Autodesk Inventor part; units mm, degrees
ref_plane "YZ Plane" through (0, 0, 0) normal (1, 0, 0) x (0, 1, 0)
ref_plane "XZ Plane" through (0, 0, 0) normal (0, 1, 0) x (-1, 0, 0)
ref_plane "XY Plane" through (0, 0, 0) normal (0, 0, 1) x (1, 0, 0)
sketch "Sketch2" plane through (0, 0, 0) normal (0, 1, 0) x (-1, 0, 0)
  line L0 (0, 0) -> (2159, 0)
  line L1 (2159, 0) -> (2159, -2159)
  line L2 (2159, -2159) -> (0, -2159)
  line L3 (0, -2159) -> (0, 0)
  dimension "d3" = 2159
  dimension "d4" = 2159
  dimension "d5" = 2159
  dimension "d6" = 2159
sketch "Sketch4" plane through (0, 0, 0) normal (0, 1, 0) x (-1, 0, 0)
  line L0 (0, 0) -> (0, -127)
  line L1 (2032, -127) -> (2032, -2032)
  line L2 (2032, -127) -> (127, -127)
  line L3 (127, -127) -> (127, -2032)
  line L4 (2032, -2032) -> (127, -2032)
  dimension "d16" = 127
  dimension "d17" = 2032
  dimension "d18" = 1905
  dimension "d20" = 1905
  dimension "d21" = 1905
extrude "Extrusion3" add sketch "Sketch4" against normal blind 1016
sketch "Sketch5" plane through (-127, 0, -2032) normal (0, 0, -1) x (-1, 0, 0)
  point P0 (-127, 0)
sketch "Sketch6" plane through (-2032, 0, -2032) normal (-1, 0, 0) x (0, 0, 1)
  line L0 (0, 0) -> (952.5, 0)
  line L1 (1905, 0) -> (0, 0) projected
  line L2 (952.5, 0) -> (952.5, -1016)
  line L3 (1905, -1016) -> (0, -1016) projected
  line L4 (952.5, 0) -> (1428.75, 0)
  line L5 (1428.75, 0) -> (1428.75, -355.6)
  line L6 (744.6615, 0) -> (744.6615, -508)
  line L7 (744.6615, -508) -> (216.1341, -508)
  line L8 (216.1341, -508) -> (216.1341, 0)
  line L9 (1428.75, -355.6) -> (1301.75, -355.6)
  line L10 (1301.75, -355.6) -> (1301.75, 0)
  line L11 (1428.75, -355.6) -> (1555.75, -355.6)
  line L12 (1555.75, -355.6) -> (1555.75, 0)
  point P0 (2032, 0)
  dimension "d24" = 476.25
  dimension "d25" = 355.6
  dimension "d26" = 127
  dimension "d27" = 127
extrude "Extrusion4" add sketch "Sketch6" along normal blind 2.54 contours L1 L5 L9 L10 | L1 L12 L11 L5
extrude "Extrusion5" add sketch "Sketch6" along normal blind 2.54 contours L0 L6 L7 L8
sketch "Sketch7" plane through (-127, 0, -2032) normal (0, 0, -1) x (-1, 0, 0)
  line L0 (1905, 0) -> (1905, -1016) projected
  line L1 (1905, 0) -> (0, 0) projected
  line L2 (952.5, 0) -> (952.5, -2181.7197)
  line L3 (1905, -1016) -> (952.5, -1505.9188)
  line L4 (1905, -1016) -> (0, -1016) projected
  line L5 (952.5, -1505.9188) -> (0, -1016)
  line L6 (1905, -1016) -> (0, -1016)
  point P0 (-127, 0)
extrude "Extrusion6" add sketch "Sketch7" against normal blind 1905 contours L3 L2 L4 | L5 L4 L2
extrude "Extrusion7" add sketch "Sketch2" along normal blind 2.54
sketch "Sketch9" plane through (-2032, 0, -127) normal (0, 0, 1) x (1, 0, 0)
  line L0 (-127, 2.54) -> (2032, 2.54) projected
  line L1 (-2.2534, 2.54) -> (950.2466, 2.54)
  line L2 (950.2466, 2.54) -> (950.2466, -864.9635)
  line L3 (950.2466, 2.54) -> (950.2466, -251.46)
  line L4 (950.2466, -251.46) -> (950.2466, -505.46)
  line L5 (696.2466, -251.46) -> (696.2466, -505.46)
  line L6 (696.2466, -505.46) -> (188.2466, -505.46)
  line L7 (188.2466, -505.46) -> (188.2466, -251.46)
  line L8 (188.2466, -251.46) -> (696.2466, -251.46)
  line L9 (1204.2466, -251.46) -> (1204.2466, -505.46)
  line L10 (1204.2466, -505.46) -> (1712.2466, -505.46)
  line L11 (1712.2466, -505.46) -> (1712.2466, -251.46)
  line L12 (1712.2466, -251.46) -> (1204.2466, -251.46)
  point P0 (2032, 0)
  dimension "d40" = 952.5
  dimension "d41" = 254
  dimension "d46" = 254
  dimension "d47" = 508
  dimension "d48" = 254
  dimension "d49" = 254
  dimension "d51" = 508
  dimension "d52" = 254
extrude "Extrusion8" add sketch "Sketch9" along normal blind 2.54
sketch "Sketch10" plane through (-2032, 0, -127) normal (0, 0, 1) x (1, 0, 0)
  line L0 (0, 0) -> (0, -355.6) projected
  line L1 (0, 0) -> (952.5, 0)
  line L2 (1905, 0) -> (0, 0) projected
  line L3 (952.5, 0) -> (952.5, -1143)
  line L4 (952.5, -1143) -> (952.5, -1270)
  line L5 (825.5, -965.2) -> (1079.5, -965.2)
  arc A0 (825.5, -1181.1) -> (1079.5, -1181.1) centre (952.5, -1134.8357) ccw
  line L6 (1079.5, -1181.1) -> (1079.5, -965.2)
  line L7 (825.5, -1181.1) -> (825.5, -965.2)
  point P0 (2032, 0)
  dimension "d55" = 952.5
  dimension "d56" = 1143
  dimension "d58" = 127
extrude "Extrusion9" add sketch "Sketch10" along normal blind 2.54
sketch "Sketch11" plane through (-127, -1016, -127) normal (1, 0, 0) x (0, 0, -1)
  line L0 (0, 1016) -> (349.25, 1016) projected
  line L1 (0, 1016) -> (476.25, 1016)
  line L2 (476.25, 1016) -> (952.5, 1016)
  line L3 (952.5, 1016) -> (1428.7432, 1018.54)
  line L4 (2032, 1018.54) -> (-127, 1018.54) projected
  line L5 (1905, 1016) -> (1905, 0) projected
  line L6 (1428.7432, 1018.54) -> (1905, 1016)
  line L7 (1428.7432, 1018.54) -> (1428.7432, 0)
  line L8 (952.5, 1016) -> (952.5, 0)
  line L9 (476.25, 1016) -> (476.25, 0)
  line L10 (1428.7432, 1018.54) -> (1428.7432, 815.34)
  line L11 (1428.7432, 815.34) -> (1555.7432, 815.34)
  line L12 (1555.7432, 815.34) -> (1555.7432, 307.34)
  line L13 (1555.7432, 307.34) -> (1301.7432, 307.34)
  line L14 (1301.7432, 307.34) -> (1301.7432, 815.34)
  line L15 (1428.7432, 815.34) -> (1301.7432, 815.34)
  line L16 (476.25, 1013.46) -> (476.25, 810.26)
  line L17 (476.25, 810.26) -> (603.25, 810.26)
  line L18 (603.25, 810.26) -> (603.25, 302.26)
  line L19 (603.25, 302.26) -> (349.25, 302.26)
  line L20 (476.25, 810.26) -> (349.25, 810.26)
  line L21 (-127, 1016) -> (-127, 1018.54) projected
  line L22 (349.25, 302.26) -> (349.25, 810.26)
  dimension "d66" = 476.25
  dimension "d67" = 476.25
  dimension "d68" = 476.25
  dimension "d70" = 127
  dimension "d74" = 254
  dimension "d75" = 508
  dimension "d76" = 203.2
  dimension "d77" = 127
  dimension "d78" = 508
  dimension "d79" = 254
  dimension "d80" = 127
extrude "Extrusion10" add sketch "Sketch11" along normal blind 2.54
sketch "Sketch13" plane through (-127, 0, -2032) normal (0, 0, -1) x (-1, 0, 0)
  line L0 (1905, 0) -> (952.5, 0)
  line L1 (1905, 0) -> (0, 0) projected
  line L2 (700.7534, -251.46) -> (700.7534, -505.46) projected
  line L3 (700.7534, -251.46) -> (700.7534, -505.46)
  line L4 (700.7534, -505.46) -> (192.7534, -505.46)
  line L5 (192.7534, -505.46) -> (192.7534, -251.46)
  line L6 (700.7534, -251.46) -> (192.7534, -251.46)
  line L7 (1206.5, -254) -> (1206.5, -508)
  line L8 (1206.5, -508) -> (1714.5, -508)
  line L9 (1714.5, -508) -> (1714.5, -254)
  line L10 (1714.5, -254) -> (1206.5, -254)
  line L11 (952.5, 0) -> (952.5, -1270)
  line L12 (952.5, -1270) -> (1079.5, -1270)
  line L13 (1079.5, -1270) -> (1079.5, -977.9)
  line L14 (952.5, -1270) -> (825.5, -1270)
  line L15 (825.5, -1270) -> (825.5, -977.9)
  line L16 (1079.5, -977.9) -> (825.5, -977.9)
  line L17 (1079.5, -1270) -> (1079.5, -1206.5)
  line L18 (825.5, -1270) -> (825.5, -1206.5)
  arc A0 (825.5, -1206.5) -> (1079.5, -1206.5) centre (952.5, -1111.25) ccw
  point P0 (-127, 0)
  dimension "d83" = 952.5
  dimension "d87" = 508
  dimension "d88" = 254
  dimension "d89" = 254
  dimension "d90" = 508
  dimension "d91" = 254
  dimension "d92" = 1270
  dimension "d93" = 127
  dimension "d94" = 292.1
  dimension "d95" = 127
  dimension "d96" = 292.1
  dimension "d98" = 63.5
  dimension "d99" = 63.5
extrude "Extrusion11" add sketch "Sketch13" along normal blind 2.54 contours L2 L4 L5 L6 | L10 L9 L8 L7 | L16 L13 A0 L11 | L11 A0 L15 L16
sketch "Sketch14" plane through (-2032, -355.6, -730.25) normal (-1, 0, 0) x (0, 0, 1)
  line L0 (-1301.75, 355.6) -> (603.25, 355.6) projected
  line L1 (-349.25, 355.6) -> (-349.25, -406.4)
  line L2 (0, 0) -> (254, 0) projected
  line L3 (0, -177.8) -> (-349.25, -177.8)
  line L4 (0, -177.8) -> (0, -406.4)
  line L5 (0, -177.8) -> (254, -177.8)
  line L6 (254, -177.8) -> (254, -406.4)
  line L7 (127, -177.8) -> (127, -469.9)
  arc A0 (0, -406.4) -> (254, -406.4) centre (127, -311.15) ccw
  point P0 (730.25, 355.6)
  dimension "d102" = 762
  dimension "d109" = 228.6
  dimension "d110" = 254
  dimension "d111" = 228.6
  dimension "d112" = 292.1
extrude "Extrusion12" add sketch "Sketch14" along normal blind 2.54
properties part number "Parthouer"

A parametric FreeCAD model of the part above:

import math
import FreeCAD as App
import Part
import Sketcher

V = App.Vector
Q = App.Units.Quantity


def add_polygon(sketch, points):
    """Adds a closed chain of lines whose ends are joined by coincident constraints."""
    first, n = sketch.GeometryCount, len(points)
    for a, b in zip(points, points[1:] + points[:1]):
        sketch.addGeometry(Part.LineSegment(App.Vector(*a, 0), App.Vector(*b, 0)), False)
    for i in range(n):
        sketch.addConstraint(Sketcher.Constraint("Coincident", first + i, 2, first + (i + 1) % n, 1))

doc = App.newDocument("Part")
body = doc.addObject("PartDesign::Body", "Body")

# Sketch on XZ plane
sketch1 = body.newObject("Sketcher::SketchObject", "Sketch")
sketch1.AttachmentSupport = (doc.getObject("XZ_Plane"), [""])
sketch1.MapMode = "FlatFace"
add_polygon(sketch1, [(-2032, -2032), (-2032, -127), (-127, -127), (-127, -2032)])  # lines 0-3
sketch1.addConstraint([
    Sketcher.Constraint("Vertical", 0),
    Sketcher.Constraint("Horizontal", 1),
    Sketcher.Constraint("Vertical", 2),
    Sketcher.Constraint("Horizontal", 3),
    Sketcher.Constraint("Equal", 3, 0),
    Sketcher.Constraint("DistanceX", 1, 1, 1, 2, Q("75 in")),
    Sketcher.Constraint("DistanceX", 0, 2, -1, 1, Q("80 in")),
    Sketcher.Constraint("DistanceY", 0, 2, -1, 1, Q("5 in")),
])
pad1 = body.newObject("PartDesign::Pad", "Pad")
pad1.Profile = sketch1
pad1.Length = Q("40 in")

# Sketch on YZ plane
sketch2 = body.newObject("Sketcher::SketchObject", "Sketch001")
sketch2.AttachmentSupport = (doc.getObject("YZ_Plane"), [""])
sketch2.MapMode = "FlatFace"
sketch2.AttachmentOffset = App.Placement(V(0, 0, -80 * 25.4), App.Rotation())
add_polygon(sketch2, [(0, -730), (-356, -730), (-356, -476), (0, -476)])  # lines 0-3
sketch2.addConstraint([
    Sketcher.Constraint("Horizontal", 0),
    Sketcher.Constraint("Vertical", 1),
    Sketcher.Constraint("Horizontal", 2),
    Sketcher.Constraint("Vertical", 3),
    Sketcher.Constraint("PointOnObject", 2, 2, -2),
    Sketcher.Constraint("DistanceX", 0, 2, 0, 1, Q("14 in")),
    Sketcher.Constraint("DistanceY", 1, 1, 1, 2, Q("10 in")),
    Sketcher.Constraint("DistanceY", 1, 2, -1, 1, Q("18.75 in")),
])
pad2 = body.newObject("PartDesign::Pad", "Pad001")
pad2.Profile = sketch2
pad2.Length = Q("0.1 in")
pad2.Reversed = True

# Sketch on YZ plane
sketch3 = body.newObject("Sketcher::SketchObject", "Sketch002")
sketch3.AttachmentSupport = (doc.getObject("YZ_Plane"), [""])
sketch3.MapMode = "FlatFace"
sketch3.AttachmentOffset = App.Placement(V(0, 0, -80 * 25.4), App.Rotation())
add_polygon(sketch3, [(0, -1287), (0, -1816), (-508, -1816), (-508, -1287)])  # lines 0-3
sketch3.addConstraint([
    Sketcher.Constraint("Vertical", 0),
    Sketcher.Constraint("Horizontal", 1),
    Sketcher.Constraint("Vertical", 2),
    Sketcher.Constraint("Horizontal", 3),
    Sketcher.Constraint("PointOnObject", 0, 2, -2),
    Sketcher.Constraint("DistanceX", 1, 2, 1, 1, Q("20 in")),
    Sketcher.Constraint("DistanceY", 0, 2, 0, 1, 528.5274),
    Sketcher.Constraint("DistanceY", 0, 2, -1, 1, 1815.866),
])
pad3 = body.newObject("PartDesign::Pad", "Pad002")
pad3.Profile = sketch3
pad3.Length = Q("0.1 in")
pad3.Reversed = True

# Sketch on XY plane
sketch4 = body.newObject("Sketcher::SketchObject", "Sketch003")
sketch4.AttachmentSupport = (doc.getObject("XY_Plane"), [""])
sketch4.MapMode = "FlatFace"
sketch4.AttachmentOffset = App.Placement(V(0, 0, -80 * 25.4), App.Rotation())
add_polygon(sketch4, [(-1080, -1506), (-2032, -1016), (-127, -1016)])  # lines 0-2
sketch4.addConstraint([
    Sketcher.Constraint("Horizontal", 1),
    Sketcher.Constraint("Equal", 0, 2),
    Sketcher.Constraint("DistanceX", 1, 1, 1, 2, Q("75 in")),
    Sketcher.Constraint("DistanceX", 0, 2, -1, 1, Q("80 in")),
    Sketcher.Constraint("DistanceY", 0, 2, -1, 1, Q("40 in")),
    Sketcher.Constraint("Angle", 0, Q("152.781 deg")),
])
pad4 = body.newObject("PartDesign::Pad", "Pad003")
pad4.Profile = sketch4
pad4.Length = Q("75 in")

# Sketch on XZ plane
sketch5 = body.newObject("Sketcher::SketchObject", "Sketch004")
sketch5.AttachmentSupport = (doc.getObject("XZ_Plane"), [""])
sketch5.MapMode = "FlatFace"
add_polygon(sketch5, [(-2159, 0), (0, 0), (0, -2159), (-2159, -2159)])  # lines 0-3
sketch5.addConstraint([
    Sketcher.Constraint("Horizontal", 0),
    Sketcher.Constraint("Vertical", 1),
    Sketcher.Constraint("Horizontal", 2),
    Sketcher.Constraint("Vertical", 3),
    Sketcher.Constraint("Coincident", 0, 2, -1, 1),
    Sketcher.Constraint("Equal", 2, 1),
    Sketcher.Constraint("DistanceX", 0, 1, 0, 2, Q("85 in")),
])
pad5 = body.newObject("PartDesign::Pad", "Pad004")
pad5.Profile = sketch5
pad5.Length = Q("0.1 in")
pad5.Reversed = True

# Sketch on XY plane
sketch6 = body.newObject("Sketcher::SketchObject", "Sketch005")
sketch6.AttachmentSupport = (doc.getObject("XY_Plane"), [""])
sketch6.MapMode = "FlatFace"
sketch6.AttachmentOffset = App.Placement(V(0, 0, -5 * 25.4), App.Rotation())
add_polygon(sketch6, [(-1336, -505), (-1336, -251), (-1844, -251), (-1844, -505)])  # lines 0-3
add_polygon(sketch6, [(-320, -251), (-828, -251), (-828, -505), (-320, -505)])  # lines 4-7
sketch6.addConstraint([
    Sketcher.Constraint("Vertical", 0),
    Sketcher.Constraint("Horizontal", 1),
    Sketcher.Constraint("Vertical", 2),
    Sketcher.Constraint("Horizontal", 3),
    Sketcher.Constraint("Horizontal", 4),
    Sketcher.Constraint("Vertical", 5),
    Sketcher.Constraint("Horizontal", 6),
    Sketcher.Constraint("Vertical", 7),
    Sketcher.Constraint("Horizontal", 1, 2, 4, 2),
    Sketcher.Constraint("Horizontal", 3, 2, 5, 2),
    Sketcher.Constraint("Equal", 3, 4),
    Sketcher.Constraint("DistanceX", 1, 2, 1, 1, Q("20 in")),
    Sketcher.Constraint("DistanceY", 0, 1, 0, 2, Q("10 in")),
    Sketcher.Constraint("DistanceX", 0, 2, 4, 2, Q("20 in")),
    Sketcher.Constraint("DistanceY", 0, 2, -1, 1, Q("9.9 in")),
    Sketcher.Constraint("DistanceX", 0, 2, -1, 1, 1335.7534),
])
pad6 = body.newObject("PartDesign::Pad", "Pad005")
pad6.Profile = sketch6
pad6.Length = Q("0.1 in")

# Sketch on XY plane
sketch7 = body.newObject("Sketcher::SketchObject", "Sketch006")
sketch7.AttachmentSupport = (doc.getObject("XY_Plane"), [""])
sketch7.MapMode = "FlatFace"
sketch7.AttachmentOffset = App.Placement(V(0, 0, -5 * 25.4), App.Rotation())
sketch7.addGeometry([
    Part.LineSegment(V(-952, -965, 0), V(-1206, -965, 0)),
    Part.LineSegment(V(-1206, -965, 0), V(-1206, -1181, 0)),
    Part.ArcOfCircle(Part.Circle(V(-1080, -1135, 0), V(0, 0, 1), 135), math.radians(-160), math.radians(-20)),
    Part.LineSegment(V(-952, -1181, 0), V(-952, -965, 0)),
], False)
sketch7.addConstraint([
    Sketcher.Constraint("Coincident", 0, 2, 1, 1),
    Sketcher.Constraint("Coincident", 1, 2, 2, 1),
    Sketcher.Constraint("Coincident", 2, 2, 3, 1),
    Sketcher.Constraint("Coincident", 3, 2, 0, 1),
    Sketcher.Constraint("Horizontal", 0),
    Sketcher.Constraint("Vertical", 1),
    Sketcher.Constraint("Vertical", 3),
    Sketcher.Constraint("Horizontal", 1, 2, 2, 2),
    Sketcher.Constraint("DistanceX", 0, 2, 2, 3, Q("5 in")),
    Sketcher.Constraint("DistanceX", 2, 2, -1, 1, Q("37.5 in")),
    Sketcher.Constraint("DistanceY", 1, 2, 1, 1, Q("8.5 in")),
    Sketcher.Constraint("DistanceY", 0, 2, -1, 1, Q("38 in")),
    Sketcher.Constraint("Radius", 2, 135.1643),
])
pad7 = body.newObject("PartDesign::Pad", "Pad006")
pad7.Profile = sketch7
pad7.Length = Q("0.1 in")

# Sketch on YZ plane
sketch8 = body.newObject("Sketcher::SketchObject", "Sketch007")
sketch8.AttachmentSupport = (doc.getObject("YZ_Plane"), [""])
sketch8.MapMode = "FlatFace"
sketch8.AttachmentOffset = App.Placement(V(0, 0, -5 * 25.4), App.Rotation())
add_polygon(sketch8, [(-201, -1683), (-201, -1429), (-709, -1429), (-709, -1683)])  # lines 0-3
add_polygon(sketch8, [(-206, -730), (-206, -476), (-714, -476), (-714, -730)])  # lines 4-7
sketch8.addConstraint([
    Sketcher.Constraint("Vertical", 0),
    Sketcher.Constraint("Horizontal", 1),
    Sketcher.Constraint("Vertical", 2),
    Sketcher.Constraint("Horizontal", 3),
    Sketcher.Constraint("Vertical", 4),
    Sketcher.Constraint("Horizontal", 5),
    Sketcher.Constraint("Vertical", 6),
    Sketcher.Constraint("Horizontal", 7),
    Sketcher.Constraint("Equal", 3, 5),
    Sketcher.Constraint("Equal", 2, 4),
    Sketcher.Constraint("DistanceX", 1, 2, 1, 1, Q("20 in")),
    Sketcher.Constraint("DistanceY", 0, 1, 0, 2, Q("10 in")),
    Sketcher.Constraint("DistanceY", 4, 2, -1, 1, Q("18.75 in")),
    Sketcher.Constraint("DistanceX", 0, 2, -1, 1, Q("7.9 in")),
    Sketcher.Constraint("DistanceX", 4, 2, -1, 1, Q("8.1 in")),
    Sketcher.Constraint("DistanceY", 0, 2, -1, 1, 1428.7432),
])
pad8 = body.newObject("PartDesign::Pad", "Pad007")
pad8.Profile = sketch8
pad8.Length = Q("0.1 in")

# Sketch on XY plane
sketch9 = body.newObject("Sketcher::SketchObject", "Sketch008")
sketch9.AttachmentSupport = (doc.getObject("XY_Plane"), [""])
sketch9.MapMode = "FlatFace"
sketch9.AttachmentOffset = App.Placement(V(0, 0, -80 * 25.4), App.Rotation())
add_polygon(sketch9, [(-828, -505), (-828, -251), (-320, -251), (-320, -505)])  # lines 0-3
add_polygon(sketch9, [(-1842, -254), (-1334, -254), (-1334, -508), (-1842, -508)])  # lines 4-7
sketch9.addGeometry(Part.LineSegment(V(-1206, -978, 0), V(-952, -978, 0)), False)  # 8
sketch9.addGeometry(Part.LineSegment(V(-952, -978, 0), V(-952, -1206, 0)), False)  # 9
sketch9.addGeometry(Part.ArcOfCircle(Part.Circle(V(-1080, -1111, 0), V(0, 0, 1), 159), math.radians(-143), math.radians(-37)), False)  # 10
sketch9.addGeometry(Part.LineSegment(V(-1206, -1206, 0), V(-1206, -978, 0)), False)  # 11
sketch9.addConstraint([
    Sketcher.Constraint("Coincident", 8, 2, 9, 1),
    Sketcher.Constraint("Coincident", 9, 2, 10, 2),
    Sketcher.Constraint("Coincident", 10, 1, 11, 1),
    Sketcher.Constraint("Coincident", 11, 2, 8, 1),
    Sketcher.Constraint("Vertical", 0),
    Sketcher.Constraint("Horizontal", 1),
    Sketcher.Constraint("Vertical", 2),
    Sketcher.Constraint("Horizontal", 3),
    Sketcher.Constraint("Horizontal", 4),
    Sketcher.Constraint("Vertical", 5),
    Sketcher.Constraint("Horizontal", 6),
    Sketcher.Constraint("Vertical", 7),
    Sketcher.Constraint("Horizontal", 8),
    Sketcher.Constraint("Vertical", 9),
    Sketcher.Constraint("Vertical", 11),
    Sketcher.Constraint("Horizontal", 9, 2, 10, 1),
    Sketcher.Constraint("Equal", 3, 4),
    Sketcher.Constraint("Equal", 8, 0),
    Sketcher.Constraint("Equal", 2, 5),
    Sketcher.Constraint("DistanceX", 1, 1, 1, 2, Q("20 in")),
    Sketcher.Constraint("DistanceX", 8, 1, 8, 2, Q("10 in")),
    Sketcher.Constraint("DistanceY", 4, 2, -1, 1, Q("10 in")),
    Sketcher.Constraint("DistanceX", 4, 2, 10, 3, Q("10 in")),
    Sketcher.Constraint("DistanceX", 8, 2, -1, 1, Q("37.5 in")),
    Sketcher.Constraint("DistanceY", 9, 2, 9, 1, Q("9 in")),
    Sketcher.Constraint("Radius", 10, Q("6.25 in")),
    Sketcher.Constraint("DistanceY", 0, 2, -1, 1, Q("9.9 in")),
    Sketcher.Constraint("DistanceY", 8, 2, -1, 1, Q("38.5 in")),
    Sketcher.Constraint("DistanceX", 0, 2, -1, 1, 827.7534),
])
pad9 = body.newObject("PartDesign::Pad", "Pad008")
pad9.Profile = sketch9
pad9.Length = Q("0.1 in")
pad9.Reversed = True

# Sketch on YZ plane
sketch10 = body.newObject("Sketcher::SketchObject", "Sketch009")
sketch10.AttachmentSupport = (doc.getObject("YZ_Plane"), [""])
sketch10.MapMode = "FlatFace"
sketch10.AttachmentOffset = App.Placement(V(0, 0, -80 * 25.4), App.Rotation())
sketch10.addGeometry([
    Part.LineSegment(V(-533, -730, 0), V(-762, -730, 0)),
    Part.ArcOfCircle(Part.Circle(V(-667, -603, 0), V(0, 0, 1), 159), math.radians(127), math.radians(233)),
    Part.LineSegment(V(-762, -476, 0), V(-533, -476, 0)),
    Part.LineSegment(V(-533, -476, 0), V(-533, -730, 0)),
], False)
sketch10.addConstraint([
    Sketcher.Constraint("Coincident", 0, 2, 1, 2),
    Sketcher.Constraint("Coincident", 1, 1, 2, 1),
    Sketcher.Constraint("Coincident", 2, 2, 3, 1),
    Sketcher.Constraint("Coincident", 3, 2, 0, 1),
    Sketcher.Constraint("Horizontal", 0),
    Sketcher.Constraint("Horizontal", 2),
    Sketcher.Constraint("Vertical", 3),
    Sketcher.Constraint("Vertical", 0, 2, 1, 1),
    Sketcher.Constraint("DistanceX", 0, 2, 0, 1, Q("9 in")),
    Sketcher.Constraint("DistanceY", 3, 2, 3, 1, Q("10 in")),
    Sketcher.Constraint("DistanceX", 0, 2, -1, 1, Q("30 in")),
    Sketcher.Constraint("Radius", 1, Q("6.25 in")),
    Sketcher.Constraint("DistanceY", 1, 3, -1, 1, Q("23.75 in")),
])
pad10 = body.newObject("PartDesign::Pad", "Pad009")
pad10.Profile = sketch10
pad10.Length = Q("0.1 in")
pad10.Reversed = True

doc.recompute()
